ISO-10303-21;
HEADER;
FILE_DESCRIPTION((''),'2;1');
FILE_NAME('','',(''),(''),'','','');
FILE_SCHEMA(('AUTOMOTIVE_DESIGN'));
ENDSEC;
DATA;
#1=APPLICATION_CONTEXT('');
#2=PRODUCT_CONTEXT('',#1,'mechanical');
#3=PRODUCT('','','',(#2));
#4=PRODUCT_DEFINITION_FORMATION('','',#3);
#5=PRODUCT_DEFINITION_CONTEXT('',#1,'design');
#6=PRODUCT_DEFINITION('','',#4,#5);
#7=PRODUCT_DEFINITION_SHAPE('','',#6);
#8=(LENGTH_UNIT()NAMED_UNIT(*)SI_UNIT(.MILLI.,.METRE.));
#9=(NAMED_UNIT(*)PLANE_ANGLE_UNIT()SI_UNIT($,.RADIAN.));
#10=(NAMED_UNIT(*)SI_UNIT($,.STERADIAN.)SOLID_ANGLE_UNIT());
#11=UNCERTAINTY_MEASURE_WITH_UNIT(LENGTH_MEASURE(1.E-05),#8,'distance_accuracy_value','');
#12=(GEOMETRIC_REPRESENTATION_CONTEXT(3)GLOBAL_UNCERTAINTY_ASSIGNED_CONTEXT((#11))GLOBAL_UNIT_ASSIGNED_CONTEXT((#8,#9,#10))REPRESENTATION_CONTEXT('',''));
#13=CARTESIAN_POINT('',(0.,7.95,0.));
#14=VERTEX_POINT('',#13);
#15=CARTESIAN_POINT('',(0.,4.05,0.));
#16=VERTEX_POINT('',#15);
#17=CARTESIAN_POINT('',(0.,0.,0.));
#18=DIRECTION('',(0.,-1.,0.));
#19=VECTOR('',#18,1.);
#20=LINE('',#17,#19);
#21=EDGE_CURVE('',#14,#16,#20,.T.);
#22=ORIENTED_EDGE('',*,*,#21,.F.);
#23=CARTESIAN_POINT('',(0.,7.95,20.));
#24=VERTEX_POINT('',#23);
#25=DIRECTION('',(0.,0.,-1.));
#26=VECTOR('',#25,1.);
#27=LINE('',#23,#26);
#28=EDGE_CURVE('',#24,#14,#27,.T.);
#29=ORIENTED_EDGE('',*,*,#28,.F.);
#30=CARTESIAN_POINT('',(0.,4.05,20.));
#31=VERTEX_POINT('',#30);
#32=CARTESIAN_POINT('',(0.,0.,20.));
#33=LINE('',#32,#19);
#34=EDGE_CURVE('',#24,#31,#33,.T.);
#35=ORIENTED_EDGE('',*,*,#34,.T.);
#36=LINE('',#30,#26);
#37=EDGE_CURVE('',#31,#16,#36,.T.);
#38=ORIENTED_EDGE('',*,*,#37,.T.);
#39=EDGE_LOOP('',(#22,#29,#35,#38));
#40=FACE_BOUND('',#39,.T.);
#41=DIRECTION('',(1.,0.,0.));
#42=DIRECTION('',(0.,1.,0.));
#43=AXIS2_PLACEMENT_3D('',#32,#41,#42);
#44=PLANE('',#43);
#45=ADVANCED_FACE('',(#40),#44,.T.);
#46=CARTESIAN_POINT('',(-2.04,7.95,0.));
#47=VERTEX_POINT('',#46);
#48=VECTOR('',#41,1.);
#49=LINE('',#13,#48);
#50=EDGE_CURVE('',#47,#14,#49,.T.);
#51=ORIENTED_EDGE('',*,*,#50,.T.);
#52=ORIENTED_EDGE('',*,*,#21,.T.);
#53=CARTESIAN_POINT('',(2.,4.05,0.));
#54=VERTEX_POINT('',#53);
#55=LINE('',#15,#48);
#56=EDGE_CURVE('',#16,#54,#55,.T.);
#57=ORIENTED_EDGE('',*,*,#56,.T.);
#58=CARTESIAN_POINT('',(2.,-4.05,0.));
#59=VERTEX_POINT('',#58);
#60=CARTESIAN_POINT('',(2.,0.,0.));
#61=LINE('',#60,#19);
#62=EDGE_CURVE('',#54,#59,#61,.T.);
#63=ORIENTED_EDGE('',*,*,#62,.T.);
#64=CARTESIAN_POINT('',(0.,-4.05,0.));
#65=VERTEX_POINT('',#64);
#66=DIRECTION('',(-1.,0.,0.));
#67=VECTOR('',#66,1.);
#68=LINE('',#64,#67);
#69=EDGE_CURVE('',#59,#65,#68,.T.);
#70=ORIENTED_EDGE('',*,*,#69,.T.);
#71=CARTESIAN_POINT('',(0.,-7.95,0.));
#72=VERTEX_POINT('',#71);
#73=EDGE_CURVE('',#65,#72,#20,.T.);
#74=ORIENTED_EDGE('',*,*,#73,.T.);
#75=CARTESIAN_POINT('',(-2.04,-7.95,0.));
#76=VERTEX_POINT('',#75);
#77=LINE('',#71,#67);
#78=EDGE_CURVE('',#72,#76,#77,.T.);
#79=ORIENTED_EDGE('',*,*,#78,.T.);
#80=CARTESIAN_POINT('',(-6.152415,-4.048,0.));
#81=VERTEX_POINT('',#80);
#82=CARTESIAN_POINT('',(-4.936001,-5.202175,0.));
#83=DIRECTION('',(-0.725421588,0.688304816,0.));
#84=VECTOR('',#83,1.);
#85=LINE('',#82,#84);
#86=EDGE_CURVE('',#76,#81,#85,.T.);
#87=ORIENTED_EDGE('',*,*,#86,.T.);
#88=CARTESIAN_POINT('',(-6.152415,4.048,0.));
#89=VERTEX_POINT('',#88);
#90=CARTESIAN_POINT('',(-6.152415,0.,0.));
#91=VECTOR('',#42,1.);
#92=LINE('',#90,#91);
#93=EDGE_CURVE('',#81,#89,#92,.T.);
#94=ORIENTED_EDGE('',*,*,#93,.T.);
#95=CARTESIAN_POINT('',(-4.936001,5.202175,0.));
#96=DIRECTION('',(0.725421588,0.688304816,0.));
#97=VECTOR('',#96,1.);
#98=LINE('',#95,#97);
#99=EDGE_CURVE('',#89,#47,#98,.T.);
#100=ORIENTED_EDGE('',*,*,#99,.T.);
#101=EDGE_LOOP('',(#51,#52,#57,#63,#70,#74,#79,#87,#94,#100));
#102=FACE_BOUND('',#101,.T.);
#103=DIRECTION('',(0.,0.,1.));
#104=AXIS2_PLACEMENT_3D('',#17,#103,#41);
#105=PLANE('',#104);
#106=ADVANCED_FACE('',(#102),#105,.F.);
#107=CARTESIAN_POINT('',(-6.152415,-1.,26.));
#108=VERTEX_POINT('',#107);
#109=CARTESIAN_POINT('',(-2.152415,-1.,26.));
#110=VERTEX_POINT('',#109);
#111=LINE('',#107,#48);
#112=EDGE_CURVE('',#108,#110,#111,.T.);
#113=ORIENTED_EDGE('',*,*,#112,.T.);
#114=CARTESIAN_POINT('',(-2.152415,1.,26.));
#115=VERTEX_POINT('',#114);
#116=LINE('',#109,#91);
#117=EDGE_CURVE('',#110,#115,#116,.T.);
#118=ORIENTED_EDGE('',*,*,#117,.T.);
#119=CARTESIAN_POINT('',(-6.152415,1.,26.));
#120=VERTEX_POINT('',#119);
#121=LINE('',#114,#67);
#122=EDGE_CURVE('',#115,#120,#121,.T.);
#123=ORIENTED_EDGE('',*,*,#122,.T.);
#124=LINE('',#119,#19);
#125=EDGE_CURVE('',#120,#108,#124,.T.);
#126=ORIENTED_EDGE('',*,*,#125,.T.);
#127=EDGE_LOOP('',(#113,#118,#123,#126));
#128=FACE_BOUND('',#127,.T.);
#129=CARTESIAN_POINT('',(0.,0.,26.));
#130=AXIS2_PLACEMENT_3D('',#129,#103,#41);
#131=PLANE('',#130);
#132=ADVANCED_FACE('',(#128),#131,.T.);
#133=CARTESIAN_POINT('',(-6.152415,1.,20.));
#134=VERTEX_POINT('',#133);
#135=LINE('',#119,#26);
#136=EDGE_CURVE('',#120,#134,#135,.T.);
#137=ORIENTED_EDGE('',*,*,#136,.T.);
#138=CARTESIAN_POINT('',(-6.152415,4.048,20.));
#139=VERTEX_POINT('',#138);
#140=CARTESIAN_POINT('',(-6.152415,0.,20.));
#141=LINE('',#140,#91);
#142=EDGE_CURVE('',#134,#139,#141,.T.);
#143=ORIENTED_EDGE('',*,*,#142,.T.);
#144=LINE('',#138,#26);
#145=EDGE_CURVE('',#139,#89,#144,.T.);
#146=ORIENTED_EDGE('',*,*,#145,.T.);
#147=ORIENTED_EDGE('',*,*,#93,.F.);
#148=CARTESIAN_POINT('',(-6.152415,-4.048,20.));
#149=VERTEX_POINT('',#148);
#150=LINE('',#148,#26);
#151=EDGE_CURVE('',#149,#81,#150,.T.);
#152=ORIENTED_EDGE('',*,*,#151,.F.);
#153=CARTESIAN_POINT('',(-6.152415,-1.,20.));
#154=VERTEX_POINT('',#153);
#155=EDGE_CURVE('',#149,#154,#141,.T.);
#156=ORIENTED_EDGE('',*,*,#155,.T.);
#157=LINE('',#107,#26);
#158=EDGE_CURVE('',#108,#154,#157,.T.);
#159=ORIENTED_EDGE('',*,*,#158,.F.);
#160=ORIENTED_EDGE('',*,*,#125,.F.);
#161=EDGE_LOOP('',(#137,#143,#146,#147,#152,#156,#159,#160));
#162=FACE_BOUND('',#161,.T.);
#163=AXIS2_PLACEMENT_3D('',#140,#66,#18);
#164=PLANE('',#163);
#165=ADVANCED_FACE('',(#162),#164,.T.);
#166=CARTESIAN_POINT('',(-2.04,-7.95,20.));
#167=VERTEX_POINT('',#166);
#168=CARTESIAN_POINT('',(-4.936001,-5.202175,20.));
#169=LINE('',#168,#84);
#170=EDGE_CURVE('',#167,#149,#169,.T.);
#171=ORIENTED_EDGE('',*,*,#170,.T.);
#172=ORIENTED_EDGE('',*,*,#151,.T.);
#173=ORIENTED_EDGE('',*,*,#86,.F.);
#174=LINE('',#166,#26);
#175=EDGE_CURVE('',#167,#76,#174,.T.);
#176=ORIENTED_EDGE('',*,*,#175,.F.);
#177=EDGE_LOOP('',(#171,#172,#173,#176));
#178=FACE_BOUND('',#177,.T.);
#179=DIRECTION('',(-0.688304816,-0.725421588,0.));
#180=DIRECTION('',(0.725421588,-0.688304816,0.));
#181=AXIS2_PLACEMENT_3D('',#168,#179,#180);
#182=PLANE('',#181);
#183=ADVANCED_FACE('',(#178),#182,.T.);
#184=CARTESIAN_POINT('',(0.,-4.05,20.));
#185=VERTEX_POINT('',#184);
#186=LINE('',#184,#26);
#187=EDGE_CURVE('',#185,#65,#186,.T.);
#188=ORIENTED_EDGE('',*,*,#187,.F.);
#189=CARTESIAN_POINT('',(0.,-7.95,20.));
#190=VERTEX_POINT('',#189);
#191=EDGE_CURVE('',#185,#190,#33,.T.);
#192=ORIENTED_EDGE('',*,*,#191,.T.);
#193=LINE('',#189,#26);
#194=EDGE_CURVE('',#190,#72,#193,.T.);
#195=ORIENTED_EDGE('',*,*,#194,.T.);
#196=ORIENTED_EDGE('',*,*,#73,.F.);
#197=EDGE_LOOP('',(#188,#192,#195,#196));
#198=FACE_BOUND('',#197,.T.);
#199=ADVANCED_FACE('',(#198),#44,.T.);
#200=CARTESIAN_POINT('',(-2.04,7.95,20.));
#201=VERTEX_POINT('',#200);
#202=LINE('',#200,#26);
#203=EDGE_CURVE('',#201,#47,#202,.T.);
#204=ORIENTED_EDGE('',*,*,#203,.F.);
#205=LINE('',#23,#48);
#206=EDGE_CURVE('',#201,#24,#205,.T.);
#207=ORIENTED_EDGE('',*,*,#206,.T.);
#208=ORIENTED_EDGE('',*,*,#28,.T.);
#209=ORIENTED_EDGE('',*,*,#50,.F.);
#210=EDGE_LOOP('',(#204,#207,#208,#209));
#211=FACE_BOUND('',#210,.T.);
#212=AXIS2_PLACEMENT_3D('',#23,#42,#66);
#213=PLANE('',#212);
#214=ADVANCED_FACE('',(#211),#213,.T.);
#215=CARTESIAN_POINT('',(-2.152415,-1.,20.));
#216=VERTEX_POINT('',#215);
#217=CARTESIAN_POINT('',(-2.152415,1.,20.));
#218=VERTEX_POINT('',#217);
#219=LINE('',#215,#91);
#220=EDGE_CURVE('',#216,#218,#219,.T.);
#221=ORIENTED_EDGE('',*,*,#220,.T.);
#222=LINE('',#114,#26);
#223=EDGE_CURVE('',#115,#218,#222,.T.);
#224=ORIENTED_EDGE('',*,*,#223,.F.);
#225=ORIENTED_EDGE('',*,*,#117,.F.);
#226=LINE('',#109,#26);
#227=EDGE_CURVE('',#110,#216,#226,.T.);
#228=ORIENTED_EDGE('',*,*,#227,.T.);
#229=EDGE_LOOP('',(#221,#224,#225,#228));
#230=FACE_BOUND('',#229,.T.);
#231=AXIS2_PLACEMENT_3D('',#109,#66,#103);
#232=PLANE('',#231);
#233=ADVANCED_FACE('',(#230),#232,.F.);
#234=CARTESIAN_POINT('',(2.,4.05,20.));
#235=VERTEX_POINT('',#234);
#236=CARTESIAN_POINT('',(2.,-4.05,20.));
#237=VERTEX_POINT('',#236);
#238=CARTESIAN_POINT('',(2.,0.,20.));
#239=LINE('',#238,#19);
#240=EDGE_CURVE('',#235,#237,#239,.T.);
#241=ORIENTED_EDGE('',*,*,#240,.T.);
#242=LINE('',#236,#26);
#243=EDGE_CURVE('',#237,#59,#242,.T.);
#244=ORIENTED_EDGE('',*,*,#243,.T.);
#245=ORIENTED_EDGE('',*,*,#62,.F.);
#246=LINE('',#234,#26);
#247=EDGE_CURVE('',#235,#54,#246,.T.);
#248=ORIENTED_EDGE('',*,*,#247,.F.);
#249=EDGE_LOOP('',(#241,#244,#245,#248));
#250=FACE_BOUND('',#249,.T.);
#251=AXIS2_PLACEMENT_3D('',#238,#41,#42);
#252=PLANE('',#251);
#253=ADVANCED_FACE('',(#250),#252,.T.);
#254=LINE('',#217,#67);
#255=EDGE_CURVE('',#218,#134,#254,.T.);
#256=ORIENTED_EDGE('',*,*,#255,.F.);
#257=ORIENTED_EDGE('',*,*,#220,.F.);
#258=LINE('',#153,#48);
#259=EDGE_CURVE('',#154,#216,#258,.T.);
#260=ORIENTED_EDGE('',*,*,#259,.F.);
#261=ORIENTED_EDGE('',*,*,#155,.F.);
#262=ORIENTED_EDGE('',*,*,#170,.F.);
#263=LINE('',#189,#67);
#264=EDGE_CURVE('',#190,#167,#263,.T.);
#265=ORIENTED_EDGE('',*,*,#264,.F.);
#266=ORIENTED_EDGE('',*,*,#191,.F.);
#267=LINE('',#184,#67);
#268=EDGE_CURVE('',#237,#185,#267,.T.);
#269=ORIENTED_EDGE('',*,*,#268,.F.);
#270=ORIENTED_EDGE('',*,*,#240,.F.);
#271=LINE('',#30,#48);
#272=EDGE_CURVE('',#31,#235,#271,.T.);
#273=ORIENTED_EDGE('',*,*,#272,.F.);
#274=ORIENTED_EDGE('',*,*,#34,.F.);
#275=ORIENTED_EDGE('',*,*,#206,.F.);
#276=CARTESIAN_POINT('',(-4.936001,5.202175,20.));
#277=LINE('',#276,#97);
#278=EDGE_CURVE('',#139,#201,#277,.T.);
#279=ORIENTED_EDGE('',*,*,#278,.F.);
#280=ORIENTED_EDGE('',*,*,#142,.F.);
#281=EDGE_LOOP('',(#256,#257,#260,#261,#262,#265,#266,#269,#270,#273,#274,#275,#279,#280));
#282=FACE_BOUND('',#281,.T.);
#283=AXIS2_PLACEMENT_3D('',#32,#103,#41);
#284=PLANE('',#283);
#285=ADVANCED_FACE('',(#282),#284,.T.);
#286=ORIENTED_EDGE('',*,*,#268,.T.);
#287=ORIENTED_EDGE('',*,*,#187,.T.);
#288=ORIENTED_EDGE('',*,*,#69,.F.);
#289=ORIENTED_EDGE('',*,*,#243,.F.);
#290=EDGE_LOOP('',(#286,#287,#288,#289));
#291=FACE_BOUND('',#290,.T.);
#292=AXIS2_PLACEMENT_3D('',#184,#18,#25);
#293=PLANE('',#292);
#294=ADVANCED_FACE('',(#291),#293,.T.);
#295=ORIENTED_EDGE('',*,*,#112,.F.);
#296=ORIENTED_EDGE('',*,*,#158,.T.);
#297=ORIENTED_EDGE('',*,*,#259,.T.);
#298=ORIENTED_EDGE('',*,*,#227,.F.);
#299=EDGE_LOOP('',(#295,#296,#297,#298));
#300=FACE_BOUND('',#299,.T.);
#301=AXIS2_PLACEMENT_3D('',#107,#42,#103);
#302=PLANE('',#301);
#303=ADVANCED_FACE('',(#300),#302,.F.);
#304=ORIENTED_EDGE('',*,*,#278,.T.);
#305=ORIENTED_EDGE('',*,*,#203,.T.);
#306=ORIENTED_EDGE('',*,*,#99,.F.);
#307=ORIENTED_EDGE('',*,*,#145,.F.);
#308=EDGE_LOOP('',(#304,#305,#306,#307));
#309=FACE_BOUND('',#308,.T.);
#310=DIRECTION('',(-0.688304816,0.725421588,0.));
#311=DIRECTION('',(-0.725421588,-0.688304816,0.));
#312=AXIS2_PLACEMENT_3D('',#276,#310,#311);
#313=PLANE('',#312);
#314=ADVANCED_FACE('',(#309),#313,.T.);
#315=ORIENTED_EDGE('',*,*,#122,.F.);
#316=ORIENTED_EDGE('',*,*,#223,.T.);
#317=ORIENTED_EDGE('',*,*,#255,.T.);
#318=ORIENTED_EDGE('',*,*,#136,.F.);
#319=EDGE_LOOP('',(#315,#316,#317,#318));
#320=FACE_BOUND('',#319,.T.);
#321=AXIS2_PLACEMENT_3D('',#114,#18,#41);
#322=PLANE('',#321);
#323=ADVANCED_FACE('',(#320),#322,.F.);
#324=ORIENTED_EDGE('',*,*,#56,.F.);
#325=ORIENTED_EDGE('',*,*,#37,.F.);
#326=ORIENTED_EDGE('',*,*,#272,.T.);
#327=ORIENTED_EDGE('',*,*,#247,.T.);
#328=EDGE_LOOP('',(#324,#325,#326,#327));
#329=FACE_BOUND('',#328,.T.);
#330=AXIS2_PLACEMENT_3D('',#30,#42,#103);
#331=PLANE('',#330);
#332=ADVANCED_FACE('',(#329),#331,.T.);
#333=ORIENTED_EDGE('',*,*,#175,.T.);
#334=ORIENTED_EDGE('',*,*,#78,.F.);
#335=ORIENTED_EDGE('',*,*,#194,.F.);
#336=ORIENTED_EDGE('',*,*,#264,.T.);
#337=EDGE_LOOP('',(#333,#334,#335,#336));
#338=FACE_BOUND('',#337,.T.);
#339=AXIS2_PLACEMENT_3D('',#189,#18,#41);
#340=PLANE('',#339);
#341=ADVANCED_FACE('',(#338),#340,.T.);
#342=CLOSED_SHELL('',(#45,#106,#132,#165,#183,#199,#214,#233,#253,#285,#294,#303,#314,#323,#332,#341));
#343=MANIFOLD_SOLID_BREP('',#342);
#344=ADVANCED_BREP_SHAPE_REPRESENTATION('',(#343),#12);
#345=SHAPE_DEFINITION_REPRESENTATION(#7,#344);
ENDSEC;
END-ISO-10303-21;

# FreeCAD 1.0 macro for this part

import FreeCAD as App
import Part
import Sketcher
Q = App.Units.Quantity

doc = App.newDocument("Part")
body = doc.addObject("PartDesign::Body", "Body")

# Sketch on XY plane
sketch1 = body.newObject("Sketcher::SketchObject", "Sketch")
sketch1.AttachmentSupport = (doc.getObject("XY_Plane"), [""])
sketch1.MapMode = "FlatFace"
sketch1.addGeometry([
    Part.LineSegment(App.Vector(0, 7.95, 0), App.Vector(-2.04, 7.95, 0)),  # 0
    Part.LineSegment(App.Vector(-2.04, 7.95, 0), App.Vector(-6.152415, 4.048, 0)),  # 1
    Part.LineSegment(App.Vector(-6.152415, 4.048, 0), App.Vector(-6.152415, -4.048, 0)),  # 2
    Part.LineSegment(App.Vector(-6.152415, -4.048, 0), App.Vector(-2.04, -7.95, 0)),  # 3
    Part.LineSegment(App.Vector(-2.04, -7.95, 0), App.Vector(0, -7.95, 0)),  # 4
    Part.LineSegment(App.Vector(0, -7.95, 0), App.Vector(0, -4.05, 0)),  # 5
    Part.LineSegment(App.Vector(0, -4.05, 0), App.Vector(2, -4.05, 0)),  # 6
    Part.LineSegment(App.Vector(2, -4.05, 0), App.Vector(2, 4.05, 0)),  # 7
    Part.LineSegment(App.Vector(2, 4.05, 0), App.Vector(0, 4.05, 0)),  # 8
    Part.LineSegment(App.Vector(0, 4.05, 0), App.Vector(0, 7.95, 0)),  # 9
], False)
sketch1.addConstraint([
    Sketcher.Constraint("Coincident", 0, 2, 1, 1),
    Sketcher.Constraint("Coincident", 1, 2, 2, 1),
    Sketcher.Constraint("Coincident", 2, 2, 3, 1),
    Sketcher.Constraint("Coincident", 3, 2, 4, 1),
    Sketcher.Constraint("Coincident", 4, 2, 5, 1),
    Sketcher.Constraint("Coincident", 5, 2, 6, 1),
    Sketcher.Constraint("Coincident", 6, 2, 7, 1),
    Sketcher.Constraint("Coincident", 7, 2, 8, 1),
    Sketcher.Constraint("Coincident", 8, 2, 9, 1),
    Sketcher.Constraint("Coincident", 9, 2, 0, 1),
    Sketcher.Constraint("Horizontal", 0),
    Sketcher.Constraint("Vertical", 2),
    Sketcher.Constraint("Horizontal", 4),
    Sketcher.Constraint("Vertical", 5),
    Sketcher.Constraint("Horizontal", 6),
    Sketcher.Constraint("Vertical", 7),
    Sketcher.Constraint("Horizontal", 8),
    Sketcher.Constraint("Vertical", 9),
    Sketcher.Constraint("Symmetric", 5, 2, 8, 2, -1, 1),
    Sketcher.Constraint("Symmetric", 0, 2, 3, 2, -1),
    Sketcher.Constraint("PointOnObject", 4, 2, -2),
    Sketcher.Constraint("Equal", 1, 3),
    Sketcher.Constraint("DistanceX", 6, 1, 6, 2, Q("2 mm")),
    Sketcher.Constraint("DistanceY", 5, 1, 5, 2, Q("3.9 mm")),
    Sketcher.Constraint("DistanceY", 7, 1, 7, 2, Q("8.1 mm")),
    Sketcher.Constraint("DistanceX", 0, 2, 0, 1, Q("2.04 mm")),
    Sketcher.Constraint("DistanceY", 2, 2, 2, 1, Q("8.096 mm")),
    Sketcher.Constraint("Distance", 1, Q("5.669 mm")),
])
pad1 = body.newObject("PartDesign::Pad", "Pad")
pad1.Profile = sketch1
pad1.Length = 20

# Sketch on XY plane
sketch2 = body.newObject("Sketcher::SketchObject", "Sketch001")
sketch2.AttachmentSupport = (doc.getObject("XY_Plane"), [""])
sketch2.MapMode = "FlatFace"
sketch2.AttachmentOffset = App.Placement(App.Vector(0, 0, 20), App.Rotation())
sketch2.addGeometry([
    Part.LineSegment(App.Vector(-6.152415, 1, 0), App.Vector(-6.152415, -1, 0)),
    Part.LineSegment(App.Vector(-6.152415, -1, 0), App.Vector(-2.152415, -1, 0)),
    Part.LineSegment(App.Vector(-2.152415, -1, 0), App.Vector(-2.152415, 1, 0)),
    Part.LineSegment(App.Vector(-2.152415, 1, 0), App.Vector(-6.152415, 1, 0)),
], False)
sketch2.addConstraint([
    Sketcher.Constraint("Coincident", 0, 2, 1, 1),
    Sketcher.Constraint("Coincident", 1, 2, 2, 1),
    Sketcher.Constraint("Coincident", 2, 2, 3, 1),
    Sketcher.Constraint("Coincident", 3, 2, 0, 1),
    Sketcher.Constraint("Vertical", 0),
    Sketcher.Constraint("Horizontal", 1),
    Sketcher.Constraint("Vertical", 2),
    Sketcher.Constraint("Horizontal", 3),
    Sketcher.Constraint("DistanceX", 1, 1, 1, 2, Q("4 mm")),
    Sketcher.Constraint("DistanceY", 0, 2, 0, 1, Q("2 mm")),
    Sketcher.Constraint("DistanceY", 0, 2, -1, 1, Q("1 mm")),
    Sketcher.Constraint("DistanceX", 0, 2, -1, 1, Q("6.152415 mm")),
])
pad2 = body.newObject("PartDesign::Pad", "Pad001")
pad2.Profile = sketch2
pad2.Length = 6

doc.recompute()
